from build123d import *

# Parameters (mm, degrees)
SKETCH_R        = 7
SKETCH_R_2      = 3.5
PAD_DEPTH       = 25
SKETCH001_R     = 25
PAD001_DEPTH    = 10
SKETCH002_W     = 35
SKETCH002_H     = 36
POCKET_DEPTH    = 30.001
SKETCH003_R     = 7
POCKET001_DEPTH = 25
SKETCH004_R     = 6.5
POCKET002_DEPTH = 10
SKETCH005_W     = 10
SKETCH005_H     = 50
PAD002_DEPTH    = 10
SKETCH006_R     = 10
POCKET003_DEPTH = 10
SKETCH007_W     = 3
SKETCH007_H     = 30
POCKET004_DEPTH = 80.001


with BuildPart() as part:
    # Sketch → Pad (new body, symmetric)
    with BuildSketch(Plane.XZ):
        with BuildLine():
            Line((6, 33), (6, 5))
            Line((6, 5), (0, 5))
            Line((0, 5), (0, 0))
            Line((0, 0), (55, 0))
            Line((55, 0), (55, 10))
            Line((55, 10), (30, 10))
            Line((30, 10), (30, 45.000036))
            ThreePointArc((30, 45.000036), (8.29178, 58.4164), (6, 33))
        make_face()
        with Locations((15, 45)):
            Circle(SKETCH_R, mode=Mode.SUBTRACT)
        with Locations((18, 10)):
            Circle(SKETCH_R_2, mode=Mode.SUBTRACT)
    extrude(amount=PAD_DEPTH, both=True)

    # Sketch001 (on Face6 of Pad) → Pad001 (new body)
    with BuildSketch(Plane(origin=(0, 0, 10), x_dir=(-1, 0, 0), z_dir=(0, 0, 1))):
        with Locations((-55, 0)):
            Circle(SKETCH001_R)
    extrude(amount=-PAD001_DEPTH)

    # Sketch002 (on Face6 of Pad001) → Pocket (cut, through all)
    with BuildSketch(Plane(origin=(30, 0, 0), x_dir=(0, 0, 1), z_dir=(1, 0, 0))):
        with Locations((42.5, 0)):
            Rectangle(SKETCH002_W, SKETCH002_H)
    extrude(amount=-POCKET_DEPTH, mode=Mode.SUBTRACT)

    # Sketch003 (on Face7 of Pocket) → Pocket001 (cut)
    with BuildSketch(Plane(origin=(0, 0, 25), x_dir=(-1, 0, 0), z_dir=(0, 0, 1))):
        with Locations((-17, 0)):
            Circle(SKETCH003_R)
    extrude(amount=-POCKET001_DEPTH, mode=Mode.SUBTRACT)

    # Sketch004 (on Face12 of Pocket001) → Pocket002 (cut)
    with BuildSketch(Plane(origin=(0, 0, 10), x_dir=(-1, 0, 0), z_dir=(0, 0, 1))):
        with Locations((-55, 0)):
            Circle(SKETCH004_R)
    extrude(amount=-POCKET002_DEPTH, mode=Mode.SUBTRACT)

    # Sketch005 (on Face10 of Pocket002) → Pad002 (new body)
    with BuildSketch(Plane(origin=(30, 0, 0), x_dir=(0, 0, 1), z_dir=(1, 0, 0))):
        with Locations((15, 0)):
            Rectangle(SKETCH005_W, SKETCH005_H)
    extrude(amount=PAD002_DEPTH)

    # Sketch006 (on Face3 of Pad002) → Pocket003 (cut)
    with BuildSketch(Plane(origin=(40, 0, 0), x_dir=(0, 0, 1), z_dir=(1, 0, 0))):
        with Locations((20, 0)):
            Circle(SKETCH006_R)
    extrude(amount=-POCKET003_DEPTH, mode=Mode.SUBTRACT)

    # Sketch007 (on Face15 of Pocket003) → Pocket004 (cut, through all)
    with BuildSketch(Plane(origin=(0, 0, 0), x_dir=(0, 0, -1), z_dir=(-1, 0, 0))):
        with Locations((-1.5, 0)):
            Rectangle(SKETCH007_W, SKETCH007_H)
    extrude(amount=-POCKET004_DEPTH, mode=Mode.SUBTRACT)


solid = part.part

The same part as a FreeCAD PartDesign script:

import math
import FreeCAD as App
import Part
import Sketcher

V = App.Vector
Q = App.Units.Quantity


def add_polygon(sketch, points):
    """Adds a closed chain of lines whose ends are joined by coincident constraints."""
    first, n = sketch.GeometryCount, len(points)
    for a, b in zip(points, points[1:] + points[:1]):
        sketch.addGeometry(Part.LineSegment(App.Vector(*a, 0), App.Vector(*b, 0)), False)
    for i in range(n):
        sketch.addConstraint(Sketcher.Constraint("Coincident", first + i, 2, first + (i + 1) % n, 1))

doc = App.newDocument("Part")
body = doc.addObject("PartDesign::Body", "Body")

sketch1 = doc.addObject("Sketcher::SketchObject", "Sketch")
body.addObject(sketch1)
sketch1.AttachmentSupport = (doc.XZ_Plane, [""])
sketch1.MapMode = "FlatFace"
sketch1.addGeometry(Part.LineSegment(V(6, 33, 0), V(6, 5, 0)), False)
sketch1.addGeometry(Part.LineSegment(V(6, 5, 0), V(0, 5, 0)), False)
sketch1.addGeometry(Part.LineSegment(V(0, 5, 0), V(0, 0, 0)), False)
sketch1.addGeometry(Part.LineSegment(V(0, 0, 0), V(55, 0, 0)), False)
sketch1.addGeometry(Part.LineSegment(V(55, 0, 0), V(55, 10, 0)), False)
sketch1.addGeometry(Part.LineSegment(V(55, 10, 0), V(30, 10, 0)), False)
sketch1.addGeometry(Part.LineSegment(V(30, 10, 0), V(30, 45, 0)), False)
sketch1.addGeometry(Part.ArcOfCircle(Part.Circle(V(15, 45, 0), V(0, 0, 1), 15), math.radians(0), math.radians(233)), False)
sketch1.addGeometry(Part.Circle(V(18, 10, 0), V(0, 0, 1), 3.5), False)
sketch1.addGeometry(Part.Circle(V(15, 45, 0), V(0, 0, 1), 7), False)
sketch1.addConstraint(Sketcher.Constraint("Coincident", 0, 2, 1, 1))
sketch1.addConstraint(Sketcher.Constraint("Coincident", 1, 2, 2, 1))
sketch1.addConstraint(Sketcher.Constraint("Coincident", 2, 2, 3, 1))
sketch1.addConstraint(Sketcher.Constraint("Coincident", 3, 2, 4, 1))
sketch1.addConstraint(Sketcher.Constraint("Coincident", 4, 2, 5, 1))
sketch1.addConstraint(Sketcher.Constraint("Coincident", 5, 2, 6, 1))
sketch1.addConstraint(Sketcher.Constraint("Coincident", 6, 2, 7, 1))
sketch1.addConstraint(Sketcher.Constraint("Coincident", 7, 2, 0, 1))
sketch1.addConstraint(Sketcher.Constraint("Vertical", 0))
sketch1.addConstraint(Sketcher.Constraint("Horizontal", 1))
sketch1.addConstraint(Sketcher.Constraint("Vertical", 2))
sketch1.addConstraint(Sketcher.Constraint("Horizontal", 3))
sketch1.addConstraint(Sketcher.Constraint("Vertical", 4))
sketch1.addConstraint(Sketcher.Constraint("Horizontal", 5))
sketch1.addConstraint(Sketcher.Constraint("Vertical", 6))
sketch1.addConstraint(Sketcher.Constraint("Coincident", 2, 2, -1, 1))
sketch1.addConstraint(Sketcher.Constraint("Coincident", 9, 3, 7, 3))
sketch1.addConstraint(Sketcher.Constraint("Horizontal", 8, 3, 4, 2))
sketch1.addConstraint(Sketcher.Constraint("Diameter", 8, Q("7 mm")))
sketch1.addConstraint(Sketcher.Constraint("Diameter", 9, Q("14 mm")))
sketch1.addConstraint(Sketcher.Constraint("Radius", 7, Q("15 mm")))
sketch1.addConstraint(Sketcher.Constraint("DistanceX", 1, 2, 1, 1, Q("6 mm")))
sketch1.addConstraint(Sketcher.Constraint("DistanceX", 3, 1, 3, 2, Q("55 mm")))
sketch1.addConstraint(Sketcher.Constraint("DistanceX", 5, 2, 5, 1, Q("25 mm")))
sketch1.addConstraint(Sketcher.Constraint("DistanceY", 0, 2, 0, 1, Q("28 mm")))
sketch1.addConstraint(Sketcher.Constraint("DistanceY", 2, 2, 2, 1, Q("5 mm")))
sketch1.addConstraint(Sketcher.Constraint("DistanceY", 4, 1, 4, 2, Q("10 mm")))
sketch1.addConstraint(Sketcher.Constraint("DistanceX", -1, 1, 8, 3, Q("18 mm")))
sketch1.addConstraint(Sketcher.Constraint("DistanceY", 6, 1, 6, 2, Q("35.000036 mm")))
pad1 = doc.addObject("PartDesign::Pad", "Pad")
body.addObject(pad1)
pad1.Profile = sketch1
pad1.Length = 50
pad1.Midplane = True

sketch2 = doc.addObject("Sketcher::SketchObject", "Sketch001")
body.addObject(sketch2)
sketch2.AttachmentSupport = (doc.XY_Plane, [""])
sketch2.MapMode = "FlatFace"
sketch2.AttachmentOffset = App.Placement(V(0, 0, 10), App.Rotation())
sketch2.addGeometry(Part.Circle(V(55, 0, 0), V(0, 0, 1), 25), False)
sketch2.addConstraint(Sketcher.Constraint("PointOnObject", 0, 3, -1))
sketch2.addConstraint(Sketcher.Constraint("Diameter", 0, Q("50 mm")))
sketch2.addConstraint(Sketcher.Constraint("DistanceX", -1, 1, 0, 3, Q("55 mm")))
pad2 = doc.addObject("PartDesign::Pad", "Pad001")
body.addObject(pad2)
pad2.Profile = sketch2
pad2.Length = 10
pad2.Reversed = True

sketch3 = doc.addObject("Sketcher::SketchObject", "Sketch002")
body.addObject(sketch3)
sketch3.AttachmentSupport = (doc.YZ_Plane, [""])
sketch3.MapMode = "FlatFace"
sketch3.AttachmentOffset = App.Placement(V(0, 0, 30), App.Rotation())
add_polygon(sketch3, [(-18, 25), (18, 25), (18, 60), (-18, 60)])
sketch3.addConstraint(Sketcher.Constraint("Horizontal", 0))
sketch3.addConstraint(Sketcher.Constraint("Vertical", 1))
sketch3.addConstraint(Sketcher.Constraint("Horizontal", 2))
sketch3.addConstraint(Sketcher.Constraint("Vertical", 3))
sketch3.addConstraint(Sketcher.Constraint("DistanceX", 0, 1, 0, 2, Q("36 mm")))
sketch3.addConstraint(Sketcher.Constraint("DistanceY", 1, 1, 1, 2, Q("35 mm")))
sketch3.addConstraint(Sketcher.Constraint("DistanceX", -1, 1, 0, 2, Q("18 mm")))
sketch3.addConstraint(Sketcher.Constraint("DistanceY", -1, 1, 0, 2, Q("25 mm")))
pocket1 = doc.addObject("PartDesign::Pocket", "Pocket")
body.addObject(pocket1)
pocket1.Profile = sketch3
pocket1.Type = "ThroughAll"

sketch4 = doc.addObject("Sketcher::SketchObject", "Sketch003")
body.addObject(sketch4)
sketch4.AttachmentSupport = (doc.XY_Plane, [""])
sketch4.MapMode = "FlatFace"
sketch4.AttachmentOffset = App.Placement(V(0, 0, 25), App.Rotation())
sketch4.addGeometry(Part.Circle(V(17, 0, 0), V(0, 0, 1), 7), False)
sketch4.addConstraint(Sketcher.Constraint("PointOnObject", 0, 3, -1))
sketch4.addConstraint(Sketcher.Constraint("Diameter", 0, Q("14 mm")))
sketch4.addConstraint(Sketcher.Constraint("DistanceX", -1, 1, 0, 3, Q("17 mm")))
pocket2 = doc.addObject("PartDesign::Pocket", "Pocket001")
body.addObject(pocket2)
pocket2.Profile = sketch4
pocket2.Length = 25

sketch5 = doc.addObject("Sketcher::SketchObject", "Sketch004")
body.addObject(sketch5)
sketch5.AttachmentSupport = (doc.XY_Plane, [""])
sketch5.MapMode = "FlatFace"
sketch5.AttachmentOffset = App.Placement(V(0, 0, 10), App.Rotation())
sketch5.addGeometry(Part.Circle(V(55, 0, 0), V(0, 0, 1), 6), False)
sketch5.addConstraint(Sketcher.Constraint("PointOnObject", 0, 3, -1))
sketch5.addConstraint(Sketcher.Constraint("Diameter", 0, Q("13 mm")))
sketch5.addConstraint(Sketcher.Constraint("DistanceX", -1, 1, 0, 3, Q("55 mm")))
pocket3 = doc.addObject("PartDesign::Pocket", "Pocket002")
body.addObject(pocket3)
pocket3.Profile = sketch5
pocket3.Length = 10

sketch6 = doc.addObject("Sketcher::SketchObject", "Sketch005")
body.addObject(sketch6)
sketch6.AttachmentSupport = (doc.YZ_Plane, [""])
sketch6.MapMode = "FlatFace"
sketch6.AttachmentOffset = App.Placement(V(0, 0, 30), App.Rotation())
add_polygon(sketch6, [(-25, 10), (25, 10), (25, 20), (-25, 20)])
sketch6.addConstraint(Sketcher.Constraint("Horizontal", 0))
sketch6.addConstraint(Sketcher.Constraint("Vertical", 1))
sketch6.addConstraint(Sketcher.Constraint("Horizontal", 2))
sketch6.addConstraint(Sketcher.Constraint("Vertical", 3))
sketch6.addConstraint(Sketcher.Constraint("DistanceX", 0, 1, 0, 2, Q("50 mm")))
sketch6.addConstraint(Sketcher.Constraint("DistanceY", 1, 1, 1, 2, Q("10 mm")))
sketch6.addConstraint(Sketcher.Constraint("DistanceX", -1, 1, 0, 2, Q("25 mm")))
sketch6.addConstraint(Sketcher.Constraint("DistanceY", -1, 1, 0, 2, Q("10 mm")))
pad3 = doc.addObject("PartDesign::Pad", "Pad002")
body.addObject(pad3)
pad3.Profile = sketch6
pad3.Length = 10

sketch7 = doc.addObject("Sketcher::SketchObject", "Sketch006")
body.addObject(sketch7)
sketch7.AttachmentSupport = (doc.YZ_Plane, [""])
sketch7.MapMode = "FlatFace"
sketch7.AttachmentOffset = App.Placement(V(0, 0, 40), App.Rotation())
sketch7.addGeometry(Part.Circle(V(0, 20, 0), V(0, 0, 1), 10), False)
sketch7.addConstraint(Sketcher.Constraint("PointOnObject", 0, 3, -2))
sketch7.addConstraint(Sketcher.Constraint("Diameter", 0, Q("20 mm")))
sketch7.addConstraint(Sketcher.Constraint("DistanceY", -1, 1, 0, 3, Q("20 mm")))
pocket4 = doc.addObject("PartDesign::Pocket", "Pocket003")
body.addObject(pocket4)
pocket4.Profile = sketch7
pocket4.Length = 10

sketch8 = doc.addObject("Sketcher::SketchObject", "Sketch007")
body.addObject(sketch8)
sketch8.AttachmentSupport = (doc.YZ_Plane, [""])
sketch8.MapMode = "FlatFace"
add_polygon(sketch8, [(-15, 3), (15, 3), (15, 0), (-15, 0)])
sketch8.addConstraint(Sketcher.Constraint("Horizontal", 0))
sketch8.addConstraint(Sketcher.Constraint("Vertical", 1))
sketch8.addConstraint(Sketcher.Constraint("Horizontal", 2))
sketch8.addConstraint(Sketcher.Constraint("Vertical", 3))
sketch8.addConstraint(Sketcher.Constraint("Symmetric", 1, 2, 2, 2, -1, 1))
sketch8.addConstraint(Sketcher.Constraint("DistanceX", 0, 1, 0, 2, Q("30 mm")))
sketch8.addConstraint(Sketcher.Constraint("DistanceY", 1, 2, 1, 1, Q("3 mm")))
pocket5 = doc.addObject("PartDesign::Pocket", "Pocket004")
body.addObject(pocket5)
pocket5.Profile = sketch8
pocket5.Type = "ThroughAll"
pocket5.Reversed = True

doc.recompute()
